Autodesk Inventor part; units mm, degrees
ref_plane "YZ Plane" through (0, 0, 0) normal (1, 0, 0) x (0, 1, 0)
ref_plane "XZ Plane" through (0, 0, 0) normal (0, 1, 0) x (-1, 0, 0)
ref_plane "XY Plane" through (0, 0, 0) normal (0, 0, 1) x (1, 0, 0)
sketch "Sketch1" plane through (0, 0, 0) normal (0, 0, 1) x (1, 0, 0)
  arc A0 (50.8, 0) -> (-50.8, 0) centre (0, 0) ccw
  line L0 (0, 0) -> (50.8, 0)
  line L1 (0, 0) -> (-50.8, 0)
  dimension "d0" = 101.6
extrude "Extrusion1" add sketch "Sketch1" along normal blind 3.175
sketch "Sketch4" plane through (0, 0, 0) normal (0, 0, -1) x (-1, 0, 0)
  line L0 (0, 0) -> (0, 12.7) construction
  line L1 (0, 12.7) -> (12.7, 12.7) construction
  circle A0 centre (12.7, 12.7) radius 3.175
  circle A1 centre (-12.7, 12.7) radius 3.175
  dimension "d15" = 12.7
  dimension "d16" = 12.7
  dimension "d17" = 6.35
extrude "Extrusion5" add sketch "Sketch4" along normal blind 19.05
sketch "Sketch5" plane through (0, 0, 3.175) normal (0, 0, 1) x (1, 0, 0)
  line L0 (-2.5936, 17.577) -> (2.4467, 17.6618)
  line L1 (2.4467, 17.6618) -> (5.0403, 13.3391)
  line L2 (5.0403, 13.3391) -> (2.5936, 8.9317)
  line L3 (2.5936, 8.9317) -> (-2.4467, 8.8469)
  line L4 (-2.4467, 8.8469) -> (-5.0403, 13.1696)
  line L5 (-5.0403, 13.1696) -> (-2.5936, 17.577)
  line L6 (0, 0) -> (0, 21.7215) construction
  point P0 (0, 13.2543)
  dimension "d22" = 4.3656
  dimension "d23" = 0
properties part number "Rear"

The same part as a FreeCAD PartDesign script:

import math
import FreeCAD as App
import Part
import Sketcher
Q = App.Units.Quantity

doc = App.newDocument("Part")
body = doc.addObject("PartDesign::Body", "Body")

sketch1 = body.newObject("Sketcher::SketchObject", "Sketch")
sketch1.AttachmentSupport = (doc.getObject("XY_Plane"), [""])
sketch1.MapMode = "FlatFace"
sketch1.addGeometry([
    Part.LineSegment(App.Vector(-51, 0, 0), App.Vector(51, 0, 0)),
    Part.ArcOfCircle(Part.Circle(App.Vector(0, 0, 0), App.Vector(0, 0, 1), 51), math.radians(0), math.radians(180)),
], False)
sketch1.addConstraint([
    Sketcher.Constraint("Coincident", 0, 1, 1, 2),
    Sketcher.Constraint("Coincident", 1, 1, 0, 2),
    Sketcher.Constraint("Horizontal", 0),
    Sketcher.Constraint("Coincident", 1, 3, -1, 1),
    Sketcher.Constraint("PointOnObject", 0, 1, -1),
    Sketcher.Constraint("Radius", 1, Q("2 in")),
])
pad1 = body.newObject("PartDesign::Pad", "Pad")
pad1.Profile = sketch1
pad1.Length = Q("0.125 in")

sketch2 = body.newObject("Sketcher::SketchObject", "Sketch001")
sketch2.AttachmentSupport = (doc.getObject("XY_Plane"), [""])
sketch2.MapMode = "FlatFace"
sketch2.addGeometry([
    Part.Circle(App.Vector(-12.7, 12.7, 0), App.Vector(0, 0, 1), 3.2),
    Part.Circle(App.Vector(12.7, 12.7, 0), App.Vector(0, 0, 1), 3.2),
], False)
sketch2.addConstraint([
    Sketcher.Constraint("Equal", 0, 1),
    Sketcher.Constraint("Symmetric", 0, 3, 1, 3, -2),
    Sketcher.Constraint("Diameter", 0, Q("0.25 in")),
    Sketcher.Constraint("DistanceX", 0, 3, -1, 1, Q("0.5 in")),
    Sketcher.Constraint("DistanceY", -1, 1, 0, 3, Q("0.5 in")),
])
pad2 = body.newObject("PartDesign::Pad", "Pad001")
pad2.Profile = sketch2
pad2.Length = Q("0.75 in")
pad2.Reversed = True

doc.recompute()
